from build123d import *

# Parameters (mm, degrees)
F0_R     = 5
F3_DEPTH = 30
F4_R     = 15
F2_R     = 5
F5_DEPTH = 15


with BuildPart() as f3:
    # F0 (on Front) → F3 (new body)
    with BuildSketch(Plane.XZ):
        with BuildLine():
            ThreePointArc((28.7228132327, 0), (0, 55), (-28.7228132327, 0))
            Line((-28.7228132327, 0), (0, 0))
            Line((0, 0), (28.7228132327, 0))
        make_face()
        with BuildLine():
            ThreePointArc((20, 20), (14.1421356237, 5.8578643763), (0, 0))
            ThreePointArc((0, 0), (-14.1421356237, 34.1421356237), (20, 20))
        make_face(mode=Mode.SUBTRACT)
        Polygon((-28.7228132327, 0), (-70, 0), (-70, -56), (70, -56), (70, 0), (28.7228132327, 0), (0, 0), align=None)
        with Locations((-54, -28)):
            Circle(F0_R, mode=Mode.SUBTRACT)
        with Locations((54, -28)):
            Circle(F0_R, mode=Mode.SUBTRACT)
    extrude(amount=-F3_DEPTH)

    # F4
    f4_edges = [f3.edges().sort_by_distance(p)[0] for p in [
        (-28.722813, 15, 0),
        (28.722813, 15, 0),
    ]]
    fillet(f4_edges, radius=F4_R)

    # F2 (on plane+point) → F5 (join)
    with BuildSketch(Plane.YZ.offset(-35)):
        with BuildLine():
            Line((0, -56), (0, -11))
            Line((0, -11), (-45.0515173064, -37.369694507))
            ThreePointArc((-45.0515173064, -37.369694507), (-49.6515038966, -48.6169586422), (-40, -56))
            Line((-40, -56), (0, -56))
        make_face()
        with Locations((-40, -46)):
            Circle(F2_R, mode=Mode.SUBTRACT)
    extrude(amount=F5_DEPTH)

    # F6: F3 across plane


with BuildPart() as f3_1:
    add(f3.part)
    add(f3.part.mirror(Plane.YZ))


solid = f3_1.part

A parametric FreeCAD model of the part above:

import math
import FreeCAD as App
import Part
import Sketcher

V = App.Vector


def edges_at(feature, points):
    """Names of the edges that pass closest to the given points."""
    edges = feature.Shape.Edges
    near = lambda p: min(range(len(edges)), key=lambda i: edges[i].distToShape(Part.Vertex(*p))[0])
    return sorted({f"Edge{near(p) + 1}" for p in points})

doc = App.newDocument("Part")
params = doc.addObject("Spreadsheet::Sheet", "Params")
for row, (alias, value) in enumerate([
    ("sketch1_diameter", "10 mm"),
    ("sketch1_radius", "35 mm"),
    ("sketch1_radius2", "20 mm"),
    ("sketch1_width", "140 mm"),
    ("sketch1_height", "56 mm"),
    ("pad1_length", "30 mm"),
    ("fillet_radius", "15 mm"),
    ("sketch2_diameter", "10 mm"),
    ("sketch2_radius", "10 mm"),
    ("sketch2_width", "40 mm"),
    ("sketch2_height", "45 mm"),
    ("pad2_length", "15 mm"),
], start=1):
    params.set(f"A{row}", alias)
    params.set(f"B{row}", "=" + value)
    params.setAlias(f"B{row}", alias)

body = doc.addObject("PartDesign::Body", "Body")

sketch1 = body.newObject("Sketcher::SketchObject", "Sketch")
sketch1.AttachmentSupport = (doc.getObject("XZ_Plane"), [""])
sketch1.MapMode = "FlatFace"
sketch1.addGeometry(Part.ArcOfCircle(Part.Circle(V(0, 20, 0), V(0, 0, 1), 35), math.radians(-34.849905), math.radians(214.849905)), False)
sketch1.addGeometry(Part.LineSegment(V(-28.722813, 0, 0), V(-70, 0, 0)), False)
sketch1.addGeometry(Part.LineSegment(V(-70, 0, 0), V(-70, -56, 0)), False)
sketch1.addGeometry(Part.LineSegment(V(-70, -56, 0), V(70, -56, 0)), False)
sketch1.addGeometry(Part.LineSegment(V(70, -56, 0), V(70, 0, 0)), False)
sketch1.addGeometry(Part.LineSegment(V(70, 0, 0), V(28.722813, 0, 0)), False)
sketch1.addGeometry(Part.Circle(V(-54, -28, 0), V(0, 0, 1), 5), False)
sketch1.addGeometry(Part.Circle(V(54, -28, 0), V(0, 0, 1), 5), False)
sketch1.addGeometry(Part.ArcOfCircle(Part.Circle(V(0, 20, 0), V(0, 0, 1), 20), math.radians(-90), math.radians(0)), False)
sketch1.addGeometry(Part.ArcOfCircle(Part.Circle(V(0, 20, 0), V(0, 0, 1), 20), math.radians(0), math.radians(270)), False)
sketch1.addConstraint(Sketcher.Constraint("Coincident", 0, 2, 1, 1))
sketch1.addConstraint(Sketcher.Constraint("Coincident", 1, 2, 2, 1))
sketch1.addConstraint(Sketcher.Constraint("Coincident", 2, 2, 3, 1))
sketch1.addConstraint(Sketcher.Constraint("Coincident", 3, 2, 4, 1))
sketch1.addConstraint(Sketcher.Constraint("Coincident", 4, 2, 5, 1))
sketch1.addConstraint(Sketcher.Constraint("Coincident", 5, 2, 0, 1))
sketch1.addConstraint(Sketcher.Constraint("Tangent", 8, 1, 9, 2))
sketch1.addConstraint(Sketcher.Constraint("Coincident", 9, 1, 8, 2))
sketch1.addConstraint(Sketcher.Constraint("Horizontal", 1))
sketch1.addConstraint(Sketcher.Constraint("Vertical", 2))
sketch1.addConstraint(Sketcher.Constraint("Horizontal", 3))
sketch1.addConstraint(Sketcher.Constraint("Vertical", 4))
sketch1.addConstraint(Sketcher.Constraint("Horizontal", 5))
sketch1.addConstraint(Sketcher.Constraint("Coincident", 8, 1, -1, 1))
sketch1.addConstraint(Sketcher.Constraint("Coincident", 8, 3, 0, 3))
sketch1.addConstraint(Sketcher.Constraint("Equal", 6, 7))
sketch1.addConstraint(Sketcher.Constraint("Symmetric", 1, 2, 4, 2, -1, 1))
sketch1.addConstraint(Sketcher.Constraint("Symmetric", 6, 3, 7, 3, -2))
sketch1.addConstraint(Sketcher.Constraint("Symmetric", 0, 2, 5, 2, -2))
sketch1.addConstraint(Sketcher.Constraint("Horizontal", 8, 3, 9, 1))
sketch1.addConstraint(Sketcher.Constraint("Diameter", 6, 10.0))
sketch1.addConstraint(Sketcher.Constraint("Radius", 0, 35.0))
sketch1.addConstraint(Sketcher.Constraint("Radius", 8, 20.0))
sketch1.addConstraint(Sketcher.Constraint("DistanceX", 3, 1, 3, 2, 140.0))
sketch1.addConstraint(Sketcher.Constraint("DistanceY", 2, 2, 2, 1, 56.0))
sketch1.addConstraint(Sketcher.Constraint("DistanceX", 6, 3, -1, 1, 54.0))
sketch1.addConstraint(Sketcher.Constraint("DistanceY", 6, 3, -1, 1, 28.0))
sketch1.setExpression("Constraints[20]", "Params.sketch1_diameter")
sketch1.setExpression("Constraints[21]", "Params.sketch1_radius")
sketch1.setExpression("Constraints[22]", "Params.sketch1_radius2")
sketch1.setExpression("Constraints[23]", "Params.sketch1_width")
sketch1.setExpression("Constraints[24]", "Params.sketch1_height")
pad1 = body.newObject("PartDesign::Pad", "Pad")
pad1.Profile = sketch1
pad1.setExpression("Length", "Params.pad1_length")
pad1.Reversed = True
doc.recompute()

fillet = body.newObject("PartDesign::Fillet", "Fillet")
fillet.Base = (pad1, edges_at(pad1, [(-28.723, 15, 0), (28.723, 15, 0)]))
fillet.setExpression("Radius", "Params.fillet_radius")

sketch2 = body.newObject("Sketcher::SketchObject", "Sketch001")
sketch2.AttachmentSupport = (doc.getObject("YZ_Plane"), [""])
sketch2.MapMode = "FlatFace"
sketch2.AttachmentOffset = App.Placement(V(0, 0, -35), App.Rotation())
sketch2.addGeometry(Part.LineSegment(V(0, -56, 0), V(0, -11, 0)), False)
sketch2.addGeometry(Part.LineSegment(V(0, -11, 0), V(-45.051517, -37.369695, 0)), False)
sketch2.addGeometry(Part.ArcOfCircle(Part.Circle(V(-40, -46, 0), V(0, 0, 1), 10), math.radians(120.341425), math.radians(270)), False)
sketch2.addGeometry(Part.LineSegment(V(-40, -56, 0), V(0, -56, 0)), False)
sketch2.addGeometry(Part.Circle(V(-40, -46, 0), V(0, 0, 1), 5), False)
sketch2.addConstraint(Sketcher.Constraint("Coincident", 0, 2, 1, 1))
sketch2.addConstraint(Sketcher.Constraint("Tangent", 1, 2, 2, 1))
sketch2.addConstraint(Sketcher.Constraint("Tangent", 2, 2, 3, 1))
sketch2.addConstraint(Sketcher.Constraint("Coincident", 3, 2, 0, 1))
sketch2.addConstraint(Sketcher.Constraint("Vertical", 0))
sketch2.addConstraint(Sketcher.Constraint("Horizontal", 3))
sketch2.addConstraint(Sketcher.Constraint("Coincident", 4, 3, 2, 3))
sketch2.addConstraint(Sketcher.Constraint("PointOnObject", 0, 2, -2))
sketch2.addConstraint(Sketcher.Constraint("Diameter", 4, 10.0))
sketch2.addConstraint(Sketcher.Constraint("Radius", 2, 10.0))
sketch2.addConstraint(Sketcher.Constraint("DistanceX", 3, 1, 3, 2, 40.0))
sketch2.addConstraint(Sketcher.Constraint("DistanceY", 0, 1, 0, 2, 45.0))
sketch2.addConstraint(Sketcher.Constraint("DistanceY", 2, 3, -1, 1, 46.0))
sketch2.setExpression("Constraints[8]", "Params.sketch2_diameter")
sketch2.setExpression("Constraints[9]", "Params.sketch2_radius")
sketch2.setExpression("Constraints[10]", "Params.sketch2_width")
sketch2.setExpression("Constraints[11]", "Params.sketch2_height")
pad2 = body.newObject("PartDesign::Pad", "Pad001")
pad2.Profile = sketch2
pad2.setExpression("Length", "Params.pad2_length")
body2 = doc.addObject("PartDesign::Body", "Body001")
doc.recompute()

body2.BaseFeature = body
doc.recompute()

mirroring = doc.addObject("Part::Mirroring", "Mirroring")
mirroring.Source = body
mirroring.Base = V(0, 0, 0)
mirroring.Normal = V(1, 0, 0)
body3 = doc.addObject("PartDesign::Body", "Body002")
body3.BaseFeature = mirroring
boolean = body2.newObject("PartDesign::Boolean", "Boolean")
boolean.Type = "Fuse"
boolean.addObjects([body3])
doc.recompute()
mirroring.Visibility = False

doc.recompute()
